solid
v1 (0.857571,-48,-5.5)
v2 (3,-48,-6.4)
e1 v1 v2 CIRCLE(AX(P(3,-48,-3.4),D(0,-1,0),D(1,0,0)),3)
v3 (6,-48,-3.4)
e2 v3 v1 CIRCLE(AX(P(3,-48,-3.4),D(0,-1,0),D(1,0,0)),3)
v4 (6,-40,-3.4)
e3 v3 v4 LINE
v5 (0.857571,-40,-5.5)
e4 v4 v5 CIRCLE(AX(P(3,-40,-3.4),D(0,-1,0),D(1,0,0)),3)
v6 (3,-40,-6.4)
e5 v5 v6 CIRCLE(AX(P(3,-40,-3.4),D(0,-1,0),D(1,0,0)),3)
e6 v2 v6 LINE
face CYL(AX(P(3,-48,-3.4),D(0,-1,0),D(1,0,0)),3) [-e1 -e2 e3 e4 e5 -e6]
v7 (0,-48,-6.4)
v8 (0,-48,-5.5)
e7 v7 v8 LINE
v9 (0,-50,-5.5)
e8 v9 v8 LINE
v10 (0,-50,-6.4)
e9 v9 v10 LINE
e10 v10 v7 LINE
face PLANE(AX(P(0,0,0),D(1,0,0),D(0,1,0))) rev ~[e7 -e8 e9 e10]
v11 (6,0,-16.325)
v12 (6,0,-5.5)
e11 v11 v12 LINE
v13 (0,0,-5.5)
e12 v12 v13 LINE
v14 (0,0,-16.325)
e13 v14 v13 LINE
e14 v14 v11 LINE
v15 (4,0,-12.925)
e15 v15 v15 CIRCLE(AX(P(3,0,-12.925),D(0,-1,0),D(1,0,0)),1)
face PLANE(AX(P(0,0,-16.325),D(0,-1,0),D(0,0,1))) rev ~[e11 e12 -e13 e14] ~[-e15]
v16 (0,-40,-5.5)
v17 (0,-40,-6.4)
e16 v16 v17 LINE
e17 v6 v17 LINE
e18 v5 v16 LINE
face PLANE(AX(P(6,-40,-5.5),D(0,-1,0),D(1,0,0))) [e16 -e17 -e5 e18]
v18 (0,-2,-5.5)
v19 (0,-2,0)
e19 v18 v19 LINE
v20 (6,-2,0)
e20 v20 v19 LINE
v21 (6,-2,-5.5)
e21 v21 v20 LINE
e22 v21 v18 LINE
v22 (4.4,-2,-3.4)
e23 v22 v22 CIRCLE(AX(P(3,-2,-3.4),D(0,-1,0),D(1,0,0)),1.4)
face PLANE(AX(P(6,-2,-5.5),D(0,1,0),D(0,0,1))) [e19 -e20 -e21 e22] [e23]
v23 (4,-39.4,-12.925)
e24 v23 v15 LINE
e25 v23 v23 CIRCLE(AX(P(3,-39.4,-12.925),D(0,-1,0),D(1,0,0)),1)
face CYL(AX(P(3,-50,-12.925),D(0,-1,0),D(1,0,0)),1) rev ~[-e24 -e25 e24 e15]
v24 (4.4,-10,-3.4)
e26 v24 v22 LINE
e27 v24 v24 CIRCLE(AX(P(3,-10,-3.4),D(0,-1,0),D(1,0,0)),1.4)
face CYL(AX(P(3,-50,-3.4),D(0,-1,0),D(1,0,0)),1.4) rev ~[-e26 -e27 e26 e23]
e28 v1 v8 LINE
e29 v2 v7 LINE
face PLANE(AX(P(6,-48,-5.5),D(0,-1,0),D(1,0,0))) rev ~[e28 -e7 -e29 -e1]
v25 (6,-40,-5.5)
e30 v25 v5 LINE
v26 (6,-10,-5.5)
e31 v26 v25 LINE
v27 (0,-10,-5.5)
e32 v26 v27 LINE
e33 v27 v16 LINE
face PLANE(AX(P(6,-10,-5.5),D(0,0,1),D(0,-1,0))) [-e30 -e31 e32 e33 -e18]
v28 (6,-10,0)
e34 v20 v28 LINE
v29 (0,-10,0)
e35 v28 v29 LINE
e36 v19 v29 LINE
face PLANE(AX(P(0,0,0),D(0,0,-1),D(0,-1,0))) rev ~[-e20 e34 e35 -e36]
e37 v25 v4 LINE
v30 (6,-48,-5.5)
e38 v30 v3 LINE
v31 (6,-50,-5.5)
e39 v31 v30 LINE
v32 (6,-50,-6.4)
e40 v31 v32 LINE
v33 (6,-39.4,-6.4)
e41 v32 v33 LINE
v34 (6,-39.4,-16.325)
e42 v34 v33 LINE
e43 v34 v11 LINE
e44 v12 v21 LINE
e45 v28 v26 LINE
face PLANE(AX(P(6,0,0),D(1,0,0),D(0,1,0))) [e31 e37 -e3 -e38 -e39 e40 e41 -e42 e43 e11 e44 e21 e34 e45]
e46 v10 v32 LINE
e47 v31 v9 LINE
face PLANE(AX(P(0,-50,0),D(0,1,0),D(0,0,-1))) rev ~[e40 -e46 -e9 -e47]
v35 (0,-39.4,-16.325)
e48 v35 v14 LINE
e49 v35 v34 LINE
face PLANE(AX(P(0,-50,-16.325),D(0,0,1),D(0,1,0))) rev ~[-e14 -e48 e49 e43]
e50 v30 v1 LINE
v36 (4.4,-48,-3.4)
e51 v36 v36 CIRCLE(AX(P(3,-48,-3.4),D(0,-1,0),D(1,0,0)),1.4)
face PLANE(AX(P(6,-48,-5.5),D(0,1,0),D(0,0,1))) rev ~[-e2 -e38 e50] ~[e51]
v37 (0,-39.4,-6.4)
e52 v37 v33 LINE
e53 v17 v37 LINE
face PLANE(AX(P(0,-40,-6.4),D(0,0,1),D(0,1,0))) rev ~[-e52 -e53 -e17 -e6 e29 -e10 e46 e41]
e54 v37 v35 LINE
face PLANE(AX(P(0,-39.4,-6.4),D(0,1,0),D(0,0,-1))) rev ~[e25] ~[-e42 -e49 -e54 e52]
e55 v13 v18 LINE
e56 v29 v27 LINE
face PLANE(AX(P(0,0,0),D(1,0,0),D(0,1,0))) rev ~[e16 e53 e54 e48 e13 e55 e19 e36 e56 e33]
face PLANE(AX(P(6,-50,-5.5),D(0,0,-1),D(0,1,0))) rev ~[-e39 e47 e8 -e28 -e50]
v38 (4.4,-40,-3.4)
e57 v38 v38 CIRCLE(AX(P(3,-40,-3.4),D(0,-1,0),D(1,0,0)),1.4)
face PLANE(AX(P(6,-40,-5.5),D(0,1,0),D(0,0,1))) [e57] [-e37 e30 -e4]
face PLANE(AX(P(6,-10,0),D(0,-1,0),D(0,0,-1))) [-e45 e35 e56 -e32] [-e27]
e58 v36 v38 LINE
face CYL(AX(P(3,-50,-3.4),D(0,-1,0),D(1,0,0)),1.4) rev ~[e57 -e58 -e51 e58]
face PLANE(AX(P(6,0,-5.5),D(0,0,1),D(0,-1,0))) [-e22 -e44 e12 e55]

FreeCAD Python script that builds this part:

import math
import FreeCAD as App
import Part
import Sketcher
Q = App.Units.Quantity


def add_polygon(sketch, points):
    """Adds a closed chain of lines whose ends are joined by coincident constraints."""
    first, n = sketch.GeometryCount, len(points)
    for a, b in zip(points, points[1:] + points[:1]):
        sketch.addGeometry(Part.LineSegment(App.Vector(*a, 0), App.Vector(*b, 0)), False)
    for i in range(n):
        sketch.addConstraint(Sketcher.Constraint("Coincident", first + i, 2, first + (i + 1) % n, 1))

doc = App.newDocument("Part")
body = doc.addObject("PartDesign::Body", "Body")

# Sketch on YZ plane
sketch1 = body.newObject("Sketcher::SketchObject", "Sketch")
sketch1.AttachmentSupport = (doc.getObject("YZ_Plane"), [""])
sketch1.MapMode = "FlatFace"
add_polygon(sketch1, [(0, -16), (0, 0), (-50, 0), (-50, -16)])  # lines 0-3
sketch1.addConstraint(Sketcher.Constraint("Vertical", 0))
sketch1.addConstraint(Sketcher.Constraint("Horizontal", 1))
sketch1.addConstraint(Sketcher.Constraint("Vertical", 2))
sketch1.addConstraint(Sketcher.Constraint("Horizontal", 3))
sketch1.addConstraint(Sketcher.Constraint("Coincident", 0, 2, -1, 1))
sketch1.addConstraint(Sketcher.Constraint("DistanceX", 1, 2, 1, 1, Q("50 mm")))
sketch1.addConstraint(Sketcher.Constraint("DistanceY", 0, 1, 0, 2, Q("16.325 mm")))
pad1 = body.newObject("PartDesign::Pad", "Pad")
pad1.Profile = sketch1
pad1.Length = 6

# Sketch on XZ plane
sketch2 = body.newObject("Sketcher::SketchObject", "Sketch001")
sketch2.AttachmentSupport = (doc.getObject("XZ_Plane"), [""])
sketch2.MapMode = "FlatFace"
sketch2.AttachmentOffset = App.Placement(App.Vector(0, 0, 50), App.Rotation())
sketch2.addGeometry(Part.Circle(App.Vector(3, -3.4, 0), App.Vector(0, 0, 1), 1.4), False)
sketch2.addGeometry(Part.Circle(App.Vector(3, -12.9, 0), App.Vector(0, 0, 1), 1), False)
sketch2.addConstraint(Sketcher.Constraint("Vertical", 0, 3, 1, 3))
sketch2.addConstraint(Sketcher.Constraint("Diameter", 1, Q("2 mm")))
sketch2.addConstraint(Sketcher.Constraint("Diameter", 0, Q("2.8 mm")))
sketch2.addConstraint(Sketcher.Constraint("DistanceX", -1, 1, 0, 3, Q("3 mm")))
sketch2.addConstraint(Sketcher.Constraint("DistanceY", 1, 3, 0, 3, Q("9.525 mm")))
sketch2.addConstraint(Sketcher.Constraint("DistanceY", 0, 3, -1, 1, Q("3.4 mm")))
pocket1 = body.newObject("PartDesign::Pocket", "Pocket")
pocket1.Profile = sketch2
pocket1.Type = "ThroughAll"

# Sketch on YZ plane
sketch3 = body.newObject("Sketcher::SketchObject", "Sketch002")
sketch3.AttachmentSupport = (doc.getObject("YZ_Plane"), [""])
sketch3.MapMode = "FlatFace"
sketch3.AttachmentOffset = App.Placement(App.Vector(0, 0, 6), App.Rotation())
add_polygon(sketch3, [(0, -5.5), (0, 0), (-2, 0), (-2, -5.5)])  # lines 0-3
add_polygon(sketch3, [(-48, -5.5), (-48, 0), (-50, 0), (-50, -5.5)])  # lines 4-7
sketch3.addConstraint(Sketcher.Constraint("Vertical", 0))
sketch3.addConstraint(Sketcher.Constraint("Horizontal", 1))
sketch3.addConstraint(Sketcher.Constraint("Vertical", 2))
sketch3.addConstraint(Sketcher.Constraint("Horizontal", 3))
sketch3.addConstraint(Sketcher.Constraint("Vertical", 4))
sketch3.addConstraint(Sketcher.Constraint("Horizontal", 5))
sketch3.addConstraint(Sketcher.Constraint("Vertical", 6))
sketch3.addConstraint(Sketcher.Constraint("Horizontal", 7))
sketch3.addConstraint(Sketcher.Constraint("Coincident", 0, 2, -1, 1))
sketch3.addConstraint(Sketcher.Constraint("PointOnObject", 4, 2, -1))
sketch3.addConstraint(Sketcher.Constraint("Horizontal", 3, 2, 6, 2))
sketch3.addConstraint(Sketcher.Constraint("Equal", 3, 5))
sketch3.addConstraint(Sketcher.Constraint("DistanceX", 1, 2, 1, 1, Q("2 mm")))
sketch3.addConstraint(Sketcher.Constraint("DistanceY", 0, 1, 0, 2, Q("5.5 mm")))
sketch3.addConstraint(Sketcher.Constraint("DistanceX", 4, 2, -1, 1, Q("48 mm")))
pocket2 = body.newObject("PartDesign::Pocket", "Pocket001")
pocket2.Profile = sketch3
pocket2.Type = "ThroughAll"

# Sketch on YZ plane
sketch4 = body.newObject("Sketcher::SketchObject", "Sketch003")
sketch4.AttachmentSupport = (doc.getObject("YZ_Plane"), [""])
sketch4.MapMode = "FlatFace"
sketch4.AttachmentOffset = App.Placement(App.Vector(0, 0, 6), App.Rotation())
add_polygon(sketch4, [(-10, -6), (-10, 0), (-40, 0), (-40, -6)])  # lines 0-3
sketch4.addConstraint(Sketcher.Constraint("Vertical", 0))
sketch4.addConstraint(Sketcher.Constraint("Horizontal", 1))
sketch4.addConstraint(Sketcher.Constraint("Vertical", 2))
sketch4.addConstraint(Sketcher.Constraint("Horizontal", 3))
sketch4.addConstraint(Sketcher.Constraint("PointOnObject", 0, 2, -1))
sketch4.addConstraint(Sketcher.Constraint("DistanceX", 1, 2, 1, 1, Q("30 mm")))
sketch4.addConstraint(Sketcher.Constraint("DistanceY", 0, 1, 0, 2, Q("5.5 mm")))
sketch4.addConstraint(Sketcher.Constraint("DistanceX", 0, 2, -1, 1, Q("10 mm")))
pocket3 = body.newObject("PartDesign::Pocket", "Pocket002")
pocket3.Profile = sketch4
pocket3.Type = "ThroughAll"

# Sketch on XZ plane
sketch5 = body.newObject("Sketcher::SketchObject", "Sketch004")
sketch5.AttachmentSupport = (doc.getObject("XZ_Plane"), [""])
sketch5.MapMode = "FlatFace"
sketch5.AttachmentOffset = App.Placement(App.Vector(0, 0, 48), App.Rotation())
sketch5.addGeometry(Part.LineSegment(App.Vector(0, -6.4, 0), App.Vector(3, -6.4, 0)), False)
sketch5.addGeometry(Part.ArcOfCircle(Part.Circle(App.Vector(3, -3.4, 0), App.Vector(0, 0, 1), 3), math.radians(180), math.radians(270)), False)
sketch5.addGeometry(Part.LineSegment(App.Vector(0, -3.4, 0), App.Vector(0, -6.4, 0)), False)
sketch5.addGeometry(Part.ArcOfCircle(Part.Circle(App.Vector(3, -3.4, 0), App.Vector(0, 0, 1), 3), math.radians(0), math.radians(180)), False)
sketch5.addGeometry(Part.LineSegment(App.Vector(6, -3.4, 0), App.Vector(6, 0, 0)), False)
sketch5.addGeometry(Part.LineSegment(App.Vector(6, 0, 0), App.Vector(0, 0, 0)), False)
sketch5.addGeometry(Part.LineSegment(App.Vector(0, 0, 0), App.Vector(0, -3.4, 0)), False)
sketch5.addConstraint(Sketcher.Constraint("Tangent", 0, 2, 1, 2))
sketch5.addConstraint(Sketcher.Constraint("Tangent", 1, 1, 2, 1))
sketch5.addConstraint(Sketcher.Constraint("Coincident", 2, 2, 0, 1))
sketch5.addConstraint(Sketcher.Constraint("Tangent", 3, 1, 4, 1))
sketch5.addConstraint(Sketcher.Constraint("Coincident", 4, 2, 5, 1))
sketch5.addConstraint(Sketcher.Constraint("Coincident", 5, 2, 6, 1))
sketch5.addConstraint(Sketcher.Constraint("Tangent", 6, 2, 3, 2))
sketch5.addConstraint(Sketcher.Constraint("Horizontal", 0))
sketch5.addConstraint(Sketcher.Constraint("Vertical", 2))
sketch5.addConstraint(Sketcher.Constraint("Vertical", 4))
sketch5.addConstraint(Sketcher.Constraint("Horizontal", 5))
sketch5.addConstraint(Sketcher.Constraint("Vertical", 6))
sketch5.addConstraint(Sketcher.Constraint("Coincident", 5, 2, -1, 1))
sketch5.addConstraint(Sketcher.Constraint("Coincident", 3, 3, 1, 3))
sketch5.addConstraint(Sketcher.Constraint("Equal", 1, 3))
sketch5.addConstraint(Sketcher.Constraint("Radius", 1, Q("3 mm")))
sketch5.addConstraint(Sketcher.Constraint("DistanceY", 4, 1, 4, 2, Q("3.4 mm")))
pocket4 = body.newObject("PartDesign::Pocket", "Pocket003")
pocket4.Profile = sketch5
pocket4.Length = 8

# Sketch on YZ plane
sketch6 = body.newObject("Sketcher::SketchObject", "Sketch005")
sketch6.AttachmentSupport = (doc.getObject("YZ_Plane"), [""])
sketch6.MapMode = "FlatFace"
add_polygon(sketch6, [(-50, -6), (-39, -6), (-39, -16), (-50, -16)])  # lines 0-3
sketch6.addConstraint(Sketcher.Constraint("Horizontal", 0))
sketch6.addConstraint(Sketcher.Constraint("Vertical", 1))
sketch6.addConstraint(Sketcher.Constraint("Horizontal", 2))
sketch6.addConstraint(Sketcher.Constraint("Vertical", 3))
sketch6.addConstraint(Sketcher.Constraint("DistanceX", 0, 1, 0, 2, Q("10.6 mm")))
sketch6.addConstraint(Sketcher.Constraint("DistanceX", 2, 2, -1, 1, Q("50 mm")))
sketch6.addConstraint(Sketcher.Constraint("DistanceY", 0, 2, -1, 1, Q("6.4 mm")))
sketch6.addConstraint(Sketcher.Constraint("DistanceY", 1, 2, 1, 1, Q("9.925 mm")))
pocket5 = body.newObject("PartDesign::Pocket", "Pocket004")
pocket5.Profile = sketch6
pocket5.Type = "ThroughAll"
pocket5.Reversed = True

doc.recompute()
